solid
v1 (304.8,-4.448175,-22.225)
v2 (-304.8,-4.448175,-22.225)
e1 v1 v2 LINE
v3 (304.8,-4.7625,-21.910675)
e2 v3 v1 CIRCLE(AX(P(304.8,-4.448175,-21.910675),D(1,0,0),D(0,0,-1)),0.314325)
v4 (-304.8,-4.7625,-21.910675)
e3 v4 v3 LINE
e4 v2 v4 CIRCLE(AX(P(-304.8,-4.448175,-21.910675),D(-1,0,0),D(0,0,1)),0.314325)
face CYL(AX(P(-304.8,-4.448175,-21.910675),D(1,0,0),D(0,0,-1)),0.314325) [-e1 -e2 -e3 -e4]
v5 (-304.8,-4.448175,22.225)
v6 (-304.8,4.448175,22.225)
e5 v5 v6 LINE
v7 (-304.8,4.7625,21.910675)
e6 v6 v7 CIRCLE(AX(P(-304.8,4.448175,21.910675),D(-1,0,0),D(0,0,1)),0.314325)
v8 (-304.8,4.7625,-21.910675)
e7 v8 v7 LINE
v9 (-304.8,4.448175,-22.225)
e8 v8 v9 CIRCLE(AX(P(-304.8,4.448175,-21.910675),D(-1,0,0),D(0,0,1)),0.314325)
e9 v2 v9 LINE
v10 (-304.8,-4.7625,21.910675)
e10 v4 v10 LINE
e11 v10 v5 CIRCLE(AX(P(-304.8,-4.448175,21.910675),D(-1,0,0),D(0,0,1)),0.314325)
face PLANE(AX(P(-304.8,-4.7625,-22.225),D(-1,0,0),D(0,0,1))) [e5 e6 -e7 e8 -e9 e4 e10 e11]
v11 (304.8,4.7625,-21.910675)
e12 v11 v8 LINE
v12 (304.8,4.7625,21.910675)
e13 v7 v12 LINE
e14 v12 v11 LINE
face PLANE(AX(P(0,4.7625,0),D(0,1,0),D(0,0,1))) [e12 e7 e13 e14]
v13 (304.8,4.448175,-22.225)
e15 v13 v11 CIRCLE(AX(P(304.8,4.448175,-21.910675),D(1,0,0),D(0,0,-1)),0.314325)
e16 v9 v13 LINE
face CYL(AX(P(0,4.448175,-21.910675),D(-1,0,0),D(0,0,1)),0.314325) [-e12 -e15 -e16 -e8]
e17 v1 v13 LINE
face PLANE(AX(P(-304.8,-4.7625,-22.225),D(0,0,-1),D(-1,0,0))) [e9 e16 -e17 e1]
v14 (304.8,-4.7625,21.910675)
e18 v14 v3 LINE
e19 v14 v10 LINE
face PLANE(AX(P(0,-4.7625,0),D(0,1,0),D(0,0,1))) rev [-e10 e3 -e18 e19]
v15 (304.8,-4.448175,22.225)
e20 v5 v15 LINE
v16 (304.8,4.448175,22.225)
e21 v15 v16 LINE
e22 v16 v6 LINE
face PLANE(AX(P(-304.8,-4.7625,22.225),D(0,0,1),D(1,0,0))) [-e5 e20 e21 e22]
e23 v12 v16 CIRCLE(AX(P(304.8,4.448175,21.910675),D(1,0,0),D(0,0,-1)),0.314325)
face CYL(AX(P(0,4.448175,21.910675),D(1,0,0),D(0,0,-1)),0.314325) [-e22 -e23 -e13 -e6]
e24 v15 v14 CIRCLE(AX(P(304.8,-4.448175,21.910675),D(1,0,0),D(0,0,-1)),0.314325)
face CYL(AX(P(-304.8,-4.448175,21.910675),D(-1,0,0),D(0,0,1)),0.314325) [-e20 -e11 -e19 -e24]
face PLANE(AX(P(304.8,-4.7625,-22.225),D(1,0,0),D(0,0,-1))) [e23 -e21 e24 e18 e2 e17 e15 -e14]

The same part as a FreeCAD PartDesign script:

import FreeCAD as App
import Part
import Sketcher
from FreeCAD import Vector
Q = App.Units.Quantity


def edges_at(feature, points):
    """Names of the edges that pass closest to the given points."""
    edges = feature.Shape.Edges
    near = lambda p: min(range(len(edges)), key=lambda i: edges[i].distToShape(Part.Vertex(*p))[0])
    return sorted({f"Edge{near(p) + 1}" for p in points})


def add_polygon(sketch, points):
    """Adds a closed chain of lines whose ends are joined by coincident constraints."""
    first, n = sketch.GeometryCount, len(points)
    for a, b in zip(points, points[1:] + points[:1]):
        sketch.addGeometry(Part.LineSegment(App.Vector(*a, 0), App.Vector(*b, 0)), False)
    for i in range(n):
        sketch.addConstraint(Sketcher.Constraint("Coincident", first + i, 2, first + (i + 1) % n, 1))

doc = App.newDocument("Part")
body = doc.addObject("PartDesign::Body", "Body")

# Sketch on XZ plane
sketch1 = doc.addObject("Sketcher::SketchObject", "Sketch")
body.addObject(sketch1)
sketch1.AttachmentSupport = (doc.XZ_Plane, [""])
sketch1.MapMode = "FlatFace"
add_polygon(sketch1, [(-305, -22), (-305, 22), (305, 22), (305, -22)])  # lines 0-3
sketch1.addConstraint([
    Sketcher.Constraint("Vertical", 0),
    Sketcher.Constraint("Horizontal", 1),
    Sketcher.Constraint("Vertical", 2),
    Sketcher.Constraint("Horizontal", 3),
    Sketcher.Constraint("Symmetric", 0, 2, 2, 2, -1, 1),
    Sketcher.Constraint("DistanceX", 1, 1, 1, 2, Q("24 in")),
    Sketcher.Constraint("DistanceY", 0, 1, 0, 2, Q("1.75 in")),
])
pad1 = doc.addObject("PartDesign::Pad", "Pad")
body.addObject(pad1)
pad1.Profile = sketch1
pad1.Type = "TwoLengths"
pad1.Length = Q("0.1875 in")
pad1.Length2 = Q("0.1875 in")
pad1.Reversed = True
doc.recompute()

fillet = doc.addObject("PartDesign::Fillet", "Fillet")
body.addObject(fillet)
fillet.Base = (pad1, edges_at(pad1, [
    (0, 4.763, 22.225),
    (0, -4.763, -22.225),
    (0, 4.763, -22.225),
    (0, -4.763, 22.225),
]))
fillet.Radius = 0.314325

doc.recompute()
